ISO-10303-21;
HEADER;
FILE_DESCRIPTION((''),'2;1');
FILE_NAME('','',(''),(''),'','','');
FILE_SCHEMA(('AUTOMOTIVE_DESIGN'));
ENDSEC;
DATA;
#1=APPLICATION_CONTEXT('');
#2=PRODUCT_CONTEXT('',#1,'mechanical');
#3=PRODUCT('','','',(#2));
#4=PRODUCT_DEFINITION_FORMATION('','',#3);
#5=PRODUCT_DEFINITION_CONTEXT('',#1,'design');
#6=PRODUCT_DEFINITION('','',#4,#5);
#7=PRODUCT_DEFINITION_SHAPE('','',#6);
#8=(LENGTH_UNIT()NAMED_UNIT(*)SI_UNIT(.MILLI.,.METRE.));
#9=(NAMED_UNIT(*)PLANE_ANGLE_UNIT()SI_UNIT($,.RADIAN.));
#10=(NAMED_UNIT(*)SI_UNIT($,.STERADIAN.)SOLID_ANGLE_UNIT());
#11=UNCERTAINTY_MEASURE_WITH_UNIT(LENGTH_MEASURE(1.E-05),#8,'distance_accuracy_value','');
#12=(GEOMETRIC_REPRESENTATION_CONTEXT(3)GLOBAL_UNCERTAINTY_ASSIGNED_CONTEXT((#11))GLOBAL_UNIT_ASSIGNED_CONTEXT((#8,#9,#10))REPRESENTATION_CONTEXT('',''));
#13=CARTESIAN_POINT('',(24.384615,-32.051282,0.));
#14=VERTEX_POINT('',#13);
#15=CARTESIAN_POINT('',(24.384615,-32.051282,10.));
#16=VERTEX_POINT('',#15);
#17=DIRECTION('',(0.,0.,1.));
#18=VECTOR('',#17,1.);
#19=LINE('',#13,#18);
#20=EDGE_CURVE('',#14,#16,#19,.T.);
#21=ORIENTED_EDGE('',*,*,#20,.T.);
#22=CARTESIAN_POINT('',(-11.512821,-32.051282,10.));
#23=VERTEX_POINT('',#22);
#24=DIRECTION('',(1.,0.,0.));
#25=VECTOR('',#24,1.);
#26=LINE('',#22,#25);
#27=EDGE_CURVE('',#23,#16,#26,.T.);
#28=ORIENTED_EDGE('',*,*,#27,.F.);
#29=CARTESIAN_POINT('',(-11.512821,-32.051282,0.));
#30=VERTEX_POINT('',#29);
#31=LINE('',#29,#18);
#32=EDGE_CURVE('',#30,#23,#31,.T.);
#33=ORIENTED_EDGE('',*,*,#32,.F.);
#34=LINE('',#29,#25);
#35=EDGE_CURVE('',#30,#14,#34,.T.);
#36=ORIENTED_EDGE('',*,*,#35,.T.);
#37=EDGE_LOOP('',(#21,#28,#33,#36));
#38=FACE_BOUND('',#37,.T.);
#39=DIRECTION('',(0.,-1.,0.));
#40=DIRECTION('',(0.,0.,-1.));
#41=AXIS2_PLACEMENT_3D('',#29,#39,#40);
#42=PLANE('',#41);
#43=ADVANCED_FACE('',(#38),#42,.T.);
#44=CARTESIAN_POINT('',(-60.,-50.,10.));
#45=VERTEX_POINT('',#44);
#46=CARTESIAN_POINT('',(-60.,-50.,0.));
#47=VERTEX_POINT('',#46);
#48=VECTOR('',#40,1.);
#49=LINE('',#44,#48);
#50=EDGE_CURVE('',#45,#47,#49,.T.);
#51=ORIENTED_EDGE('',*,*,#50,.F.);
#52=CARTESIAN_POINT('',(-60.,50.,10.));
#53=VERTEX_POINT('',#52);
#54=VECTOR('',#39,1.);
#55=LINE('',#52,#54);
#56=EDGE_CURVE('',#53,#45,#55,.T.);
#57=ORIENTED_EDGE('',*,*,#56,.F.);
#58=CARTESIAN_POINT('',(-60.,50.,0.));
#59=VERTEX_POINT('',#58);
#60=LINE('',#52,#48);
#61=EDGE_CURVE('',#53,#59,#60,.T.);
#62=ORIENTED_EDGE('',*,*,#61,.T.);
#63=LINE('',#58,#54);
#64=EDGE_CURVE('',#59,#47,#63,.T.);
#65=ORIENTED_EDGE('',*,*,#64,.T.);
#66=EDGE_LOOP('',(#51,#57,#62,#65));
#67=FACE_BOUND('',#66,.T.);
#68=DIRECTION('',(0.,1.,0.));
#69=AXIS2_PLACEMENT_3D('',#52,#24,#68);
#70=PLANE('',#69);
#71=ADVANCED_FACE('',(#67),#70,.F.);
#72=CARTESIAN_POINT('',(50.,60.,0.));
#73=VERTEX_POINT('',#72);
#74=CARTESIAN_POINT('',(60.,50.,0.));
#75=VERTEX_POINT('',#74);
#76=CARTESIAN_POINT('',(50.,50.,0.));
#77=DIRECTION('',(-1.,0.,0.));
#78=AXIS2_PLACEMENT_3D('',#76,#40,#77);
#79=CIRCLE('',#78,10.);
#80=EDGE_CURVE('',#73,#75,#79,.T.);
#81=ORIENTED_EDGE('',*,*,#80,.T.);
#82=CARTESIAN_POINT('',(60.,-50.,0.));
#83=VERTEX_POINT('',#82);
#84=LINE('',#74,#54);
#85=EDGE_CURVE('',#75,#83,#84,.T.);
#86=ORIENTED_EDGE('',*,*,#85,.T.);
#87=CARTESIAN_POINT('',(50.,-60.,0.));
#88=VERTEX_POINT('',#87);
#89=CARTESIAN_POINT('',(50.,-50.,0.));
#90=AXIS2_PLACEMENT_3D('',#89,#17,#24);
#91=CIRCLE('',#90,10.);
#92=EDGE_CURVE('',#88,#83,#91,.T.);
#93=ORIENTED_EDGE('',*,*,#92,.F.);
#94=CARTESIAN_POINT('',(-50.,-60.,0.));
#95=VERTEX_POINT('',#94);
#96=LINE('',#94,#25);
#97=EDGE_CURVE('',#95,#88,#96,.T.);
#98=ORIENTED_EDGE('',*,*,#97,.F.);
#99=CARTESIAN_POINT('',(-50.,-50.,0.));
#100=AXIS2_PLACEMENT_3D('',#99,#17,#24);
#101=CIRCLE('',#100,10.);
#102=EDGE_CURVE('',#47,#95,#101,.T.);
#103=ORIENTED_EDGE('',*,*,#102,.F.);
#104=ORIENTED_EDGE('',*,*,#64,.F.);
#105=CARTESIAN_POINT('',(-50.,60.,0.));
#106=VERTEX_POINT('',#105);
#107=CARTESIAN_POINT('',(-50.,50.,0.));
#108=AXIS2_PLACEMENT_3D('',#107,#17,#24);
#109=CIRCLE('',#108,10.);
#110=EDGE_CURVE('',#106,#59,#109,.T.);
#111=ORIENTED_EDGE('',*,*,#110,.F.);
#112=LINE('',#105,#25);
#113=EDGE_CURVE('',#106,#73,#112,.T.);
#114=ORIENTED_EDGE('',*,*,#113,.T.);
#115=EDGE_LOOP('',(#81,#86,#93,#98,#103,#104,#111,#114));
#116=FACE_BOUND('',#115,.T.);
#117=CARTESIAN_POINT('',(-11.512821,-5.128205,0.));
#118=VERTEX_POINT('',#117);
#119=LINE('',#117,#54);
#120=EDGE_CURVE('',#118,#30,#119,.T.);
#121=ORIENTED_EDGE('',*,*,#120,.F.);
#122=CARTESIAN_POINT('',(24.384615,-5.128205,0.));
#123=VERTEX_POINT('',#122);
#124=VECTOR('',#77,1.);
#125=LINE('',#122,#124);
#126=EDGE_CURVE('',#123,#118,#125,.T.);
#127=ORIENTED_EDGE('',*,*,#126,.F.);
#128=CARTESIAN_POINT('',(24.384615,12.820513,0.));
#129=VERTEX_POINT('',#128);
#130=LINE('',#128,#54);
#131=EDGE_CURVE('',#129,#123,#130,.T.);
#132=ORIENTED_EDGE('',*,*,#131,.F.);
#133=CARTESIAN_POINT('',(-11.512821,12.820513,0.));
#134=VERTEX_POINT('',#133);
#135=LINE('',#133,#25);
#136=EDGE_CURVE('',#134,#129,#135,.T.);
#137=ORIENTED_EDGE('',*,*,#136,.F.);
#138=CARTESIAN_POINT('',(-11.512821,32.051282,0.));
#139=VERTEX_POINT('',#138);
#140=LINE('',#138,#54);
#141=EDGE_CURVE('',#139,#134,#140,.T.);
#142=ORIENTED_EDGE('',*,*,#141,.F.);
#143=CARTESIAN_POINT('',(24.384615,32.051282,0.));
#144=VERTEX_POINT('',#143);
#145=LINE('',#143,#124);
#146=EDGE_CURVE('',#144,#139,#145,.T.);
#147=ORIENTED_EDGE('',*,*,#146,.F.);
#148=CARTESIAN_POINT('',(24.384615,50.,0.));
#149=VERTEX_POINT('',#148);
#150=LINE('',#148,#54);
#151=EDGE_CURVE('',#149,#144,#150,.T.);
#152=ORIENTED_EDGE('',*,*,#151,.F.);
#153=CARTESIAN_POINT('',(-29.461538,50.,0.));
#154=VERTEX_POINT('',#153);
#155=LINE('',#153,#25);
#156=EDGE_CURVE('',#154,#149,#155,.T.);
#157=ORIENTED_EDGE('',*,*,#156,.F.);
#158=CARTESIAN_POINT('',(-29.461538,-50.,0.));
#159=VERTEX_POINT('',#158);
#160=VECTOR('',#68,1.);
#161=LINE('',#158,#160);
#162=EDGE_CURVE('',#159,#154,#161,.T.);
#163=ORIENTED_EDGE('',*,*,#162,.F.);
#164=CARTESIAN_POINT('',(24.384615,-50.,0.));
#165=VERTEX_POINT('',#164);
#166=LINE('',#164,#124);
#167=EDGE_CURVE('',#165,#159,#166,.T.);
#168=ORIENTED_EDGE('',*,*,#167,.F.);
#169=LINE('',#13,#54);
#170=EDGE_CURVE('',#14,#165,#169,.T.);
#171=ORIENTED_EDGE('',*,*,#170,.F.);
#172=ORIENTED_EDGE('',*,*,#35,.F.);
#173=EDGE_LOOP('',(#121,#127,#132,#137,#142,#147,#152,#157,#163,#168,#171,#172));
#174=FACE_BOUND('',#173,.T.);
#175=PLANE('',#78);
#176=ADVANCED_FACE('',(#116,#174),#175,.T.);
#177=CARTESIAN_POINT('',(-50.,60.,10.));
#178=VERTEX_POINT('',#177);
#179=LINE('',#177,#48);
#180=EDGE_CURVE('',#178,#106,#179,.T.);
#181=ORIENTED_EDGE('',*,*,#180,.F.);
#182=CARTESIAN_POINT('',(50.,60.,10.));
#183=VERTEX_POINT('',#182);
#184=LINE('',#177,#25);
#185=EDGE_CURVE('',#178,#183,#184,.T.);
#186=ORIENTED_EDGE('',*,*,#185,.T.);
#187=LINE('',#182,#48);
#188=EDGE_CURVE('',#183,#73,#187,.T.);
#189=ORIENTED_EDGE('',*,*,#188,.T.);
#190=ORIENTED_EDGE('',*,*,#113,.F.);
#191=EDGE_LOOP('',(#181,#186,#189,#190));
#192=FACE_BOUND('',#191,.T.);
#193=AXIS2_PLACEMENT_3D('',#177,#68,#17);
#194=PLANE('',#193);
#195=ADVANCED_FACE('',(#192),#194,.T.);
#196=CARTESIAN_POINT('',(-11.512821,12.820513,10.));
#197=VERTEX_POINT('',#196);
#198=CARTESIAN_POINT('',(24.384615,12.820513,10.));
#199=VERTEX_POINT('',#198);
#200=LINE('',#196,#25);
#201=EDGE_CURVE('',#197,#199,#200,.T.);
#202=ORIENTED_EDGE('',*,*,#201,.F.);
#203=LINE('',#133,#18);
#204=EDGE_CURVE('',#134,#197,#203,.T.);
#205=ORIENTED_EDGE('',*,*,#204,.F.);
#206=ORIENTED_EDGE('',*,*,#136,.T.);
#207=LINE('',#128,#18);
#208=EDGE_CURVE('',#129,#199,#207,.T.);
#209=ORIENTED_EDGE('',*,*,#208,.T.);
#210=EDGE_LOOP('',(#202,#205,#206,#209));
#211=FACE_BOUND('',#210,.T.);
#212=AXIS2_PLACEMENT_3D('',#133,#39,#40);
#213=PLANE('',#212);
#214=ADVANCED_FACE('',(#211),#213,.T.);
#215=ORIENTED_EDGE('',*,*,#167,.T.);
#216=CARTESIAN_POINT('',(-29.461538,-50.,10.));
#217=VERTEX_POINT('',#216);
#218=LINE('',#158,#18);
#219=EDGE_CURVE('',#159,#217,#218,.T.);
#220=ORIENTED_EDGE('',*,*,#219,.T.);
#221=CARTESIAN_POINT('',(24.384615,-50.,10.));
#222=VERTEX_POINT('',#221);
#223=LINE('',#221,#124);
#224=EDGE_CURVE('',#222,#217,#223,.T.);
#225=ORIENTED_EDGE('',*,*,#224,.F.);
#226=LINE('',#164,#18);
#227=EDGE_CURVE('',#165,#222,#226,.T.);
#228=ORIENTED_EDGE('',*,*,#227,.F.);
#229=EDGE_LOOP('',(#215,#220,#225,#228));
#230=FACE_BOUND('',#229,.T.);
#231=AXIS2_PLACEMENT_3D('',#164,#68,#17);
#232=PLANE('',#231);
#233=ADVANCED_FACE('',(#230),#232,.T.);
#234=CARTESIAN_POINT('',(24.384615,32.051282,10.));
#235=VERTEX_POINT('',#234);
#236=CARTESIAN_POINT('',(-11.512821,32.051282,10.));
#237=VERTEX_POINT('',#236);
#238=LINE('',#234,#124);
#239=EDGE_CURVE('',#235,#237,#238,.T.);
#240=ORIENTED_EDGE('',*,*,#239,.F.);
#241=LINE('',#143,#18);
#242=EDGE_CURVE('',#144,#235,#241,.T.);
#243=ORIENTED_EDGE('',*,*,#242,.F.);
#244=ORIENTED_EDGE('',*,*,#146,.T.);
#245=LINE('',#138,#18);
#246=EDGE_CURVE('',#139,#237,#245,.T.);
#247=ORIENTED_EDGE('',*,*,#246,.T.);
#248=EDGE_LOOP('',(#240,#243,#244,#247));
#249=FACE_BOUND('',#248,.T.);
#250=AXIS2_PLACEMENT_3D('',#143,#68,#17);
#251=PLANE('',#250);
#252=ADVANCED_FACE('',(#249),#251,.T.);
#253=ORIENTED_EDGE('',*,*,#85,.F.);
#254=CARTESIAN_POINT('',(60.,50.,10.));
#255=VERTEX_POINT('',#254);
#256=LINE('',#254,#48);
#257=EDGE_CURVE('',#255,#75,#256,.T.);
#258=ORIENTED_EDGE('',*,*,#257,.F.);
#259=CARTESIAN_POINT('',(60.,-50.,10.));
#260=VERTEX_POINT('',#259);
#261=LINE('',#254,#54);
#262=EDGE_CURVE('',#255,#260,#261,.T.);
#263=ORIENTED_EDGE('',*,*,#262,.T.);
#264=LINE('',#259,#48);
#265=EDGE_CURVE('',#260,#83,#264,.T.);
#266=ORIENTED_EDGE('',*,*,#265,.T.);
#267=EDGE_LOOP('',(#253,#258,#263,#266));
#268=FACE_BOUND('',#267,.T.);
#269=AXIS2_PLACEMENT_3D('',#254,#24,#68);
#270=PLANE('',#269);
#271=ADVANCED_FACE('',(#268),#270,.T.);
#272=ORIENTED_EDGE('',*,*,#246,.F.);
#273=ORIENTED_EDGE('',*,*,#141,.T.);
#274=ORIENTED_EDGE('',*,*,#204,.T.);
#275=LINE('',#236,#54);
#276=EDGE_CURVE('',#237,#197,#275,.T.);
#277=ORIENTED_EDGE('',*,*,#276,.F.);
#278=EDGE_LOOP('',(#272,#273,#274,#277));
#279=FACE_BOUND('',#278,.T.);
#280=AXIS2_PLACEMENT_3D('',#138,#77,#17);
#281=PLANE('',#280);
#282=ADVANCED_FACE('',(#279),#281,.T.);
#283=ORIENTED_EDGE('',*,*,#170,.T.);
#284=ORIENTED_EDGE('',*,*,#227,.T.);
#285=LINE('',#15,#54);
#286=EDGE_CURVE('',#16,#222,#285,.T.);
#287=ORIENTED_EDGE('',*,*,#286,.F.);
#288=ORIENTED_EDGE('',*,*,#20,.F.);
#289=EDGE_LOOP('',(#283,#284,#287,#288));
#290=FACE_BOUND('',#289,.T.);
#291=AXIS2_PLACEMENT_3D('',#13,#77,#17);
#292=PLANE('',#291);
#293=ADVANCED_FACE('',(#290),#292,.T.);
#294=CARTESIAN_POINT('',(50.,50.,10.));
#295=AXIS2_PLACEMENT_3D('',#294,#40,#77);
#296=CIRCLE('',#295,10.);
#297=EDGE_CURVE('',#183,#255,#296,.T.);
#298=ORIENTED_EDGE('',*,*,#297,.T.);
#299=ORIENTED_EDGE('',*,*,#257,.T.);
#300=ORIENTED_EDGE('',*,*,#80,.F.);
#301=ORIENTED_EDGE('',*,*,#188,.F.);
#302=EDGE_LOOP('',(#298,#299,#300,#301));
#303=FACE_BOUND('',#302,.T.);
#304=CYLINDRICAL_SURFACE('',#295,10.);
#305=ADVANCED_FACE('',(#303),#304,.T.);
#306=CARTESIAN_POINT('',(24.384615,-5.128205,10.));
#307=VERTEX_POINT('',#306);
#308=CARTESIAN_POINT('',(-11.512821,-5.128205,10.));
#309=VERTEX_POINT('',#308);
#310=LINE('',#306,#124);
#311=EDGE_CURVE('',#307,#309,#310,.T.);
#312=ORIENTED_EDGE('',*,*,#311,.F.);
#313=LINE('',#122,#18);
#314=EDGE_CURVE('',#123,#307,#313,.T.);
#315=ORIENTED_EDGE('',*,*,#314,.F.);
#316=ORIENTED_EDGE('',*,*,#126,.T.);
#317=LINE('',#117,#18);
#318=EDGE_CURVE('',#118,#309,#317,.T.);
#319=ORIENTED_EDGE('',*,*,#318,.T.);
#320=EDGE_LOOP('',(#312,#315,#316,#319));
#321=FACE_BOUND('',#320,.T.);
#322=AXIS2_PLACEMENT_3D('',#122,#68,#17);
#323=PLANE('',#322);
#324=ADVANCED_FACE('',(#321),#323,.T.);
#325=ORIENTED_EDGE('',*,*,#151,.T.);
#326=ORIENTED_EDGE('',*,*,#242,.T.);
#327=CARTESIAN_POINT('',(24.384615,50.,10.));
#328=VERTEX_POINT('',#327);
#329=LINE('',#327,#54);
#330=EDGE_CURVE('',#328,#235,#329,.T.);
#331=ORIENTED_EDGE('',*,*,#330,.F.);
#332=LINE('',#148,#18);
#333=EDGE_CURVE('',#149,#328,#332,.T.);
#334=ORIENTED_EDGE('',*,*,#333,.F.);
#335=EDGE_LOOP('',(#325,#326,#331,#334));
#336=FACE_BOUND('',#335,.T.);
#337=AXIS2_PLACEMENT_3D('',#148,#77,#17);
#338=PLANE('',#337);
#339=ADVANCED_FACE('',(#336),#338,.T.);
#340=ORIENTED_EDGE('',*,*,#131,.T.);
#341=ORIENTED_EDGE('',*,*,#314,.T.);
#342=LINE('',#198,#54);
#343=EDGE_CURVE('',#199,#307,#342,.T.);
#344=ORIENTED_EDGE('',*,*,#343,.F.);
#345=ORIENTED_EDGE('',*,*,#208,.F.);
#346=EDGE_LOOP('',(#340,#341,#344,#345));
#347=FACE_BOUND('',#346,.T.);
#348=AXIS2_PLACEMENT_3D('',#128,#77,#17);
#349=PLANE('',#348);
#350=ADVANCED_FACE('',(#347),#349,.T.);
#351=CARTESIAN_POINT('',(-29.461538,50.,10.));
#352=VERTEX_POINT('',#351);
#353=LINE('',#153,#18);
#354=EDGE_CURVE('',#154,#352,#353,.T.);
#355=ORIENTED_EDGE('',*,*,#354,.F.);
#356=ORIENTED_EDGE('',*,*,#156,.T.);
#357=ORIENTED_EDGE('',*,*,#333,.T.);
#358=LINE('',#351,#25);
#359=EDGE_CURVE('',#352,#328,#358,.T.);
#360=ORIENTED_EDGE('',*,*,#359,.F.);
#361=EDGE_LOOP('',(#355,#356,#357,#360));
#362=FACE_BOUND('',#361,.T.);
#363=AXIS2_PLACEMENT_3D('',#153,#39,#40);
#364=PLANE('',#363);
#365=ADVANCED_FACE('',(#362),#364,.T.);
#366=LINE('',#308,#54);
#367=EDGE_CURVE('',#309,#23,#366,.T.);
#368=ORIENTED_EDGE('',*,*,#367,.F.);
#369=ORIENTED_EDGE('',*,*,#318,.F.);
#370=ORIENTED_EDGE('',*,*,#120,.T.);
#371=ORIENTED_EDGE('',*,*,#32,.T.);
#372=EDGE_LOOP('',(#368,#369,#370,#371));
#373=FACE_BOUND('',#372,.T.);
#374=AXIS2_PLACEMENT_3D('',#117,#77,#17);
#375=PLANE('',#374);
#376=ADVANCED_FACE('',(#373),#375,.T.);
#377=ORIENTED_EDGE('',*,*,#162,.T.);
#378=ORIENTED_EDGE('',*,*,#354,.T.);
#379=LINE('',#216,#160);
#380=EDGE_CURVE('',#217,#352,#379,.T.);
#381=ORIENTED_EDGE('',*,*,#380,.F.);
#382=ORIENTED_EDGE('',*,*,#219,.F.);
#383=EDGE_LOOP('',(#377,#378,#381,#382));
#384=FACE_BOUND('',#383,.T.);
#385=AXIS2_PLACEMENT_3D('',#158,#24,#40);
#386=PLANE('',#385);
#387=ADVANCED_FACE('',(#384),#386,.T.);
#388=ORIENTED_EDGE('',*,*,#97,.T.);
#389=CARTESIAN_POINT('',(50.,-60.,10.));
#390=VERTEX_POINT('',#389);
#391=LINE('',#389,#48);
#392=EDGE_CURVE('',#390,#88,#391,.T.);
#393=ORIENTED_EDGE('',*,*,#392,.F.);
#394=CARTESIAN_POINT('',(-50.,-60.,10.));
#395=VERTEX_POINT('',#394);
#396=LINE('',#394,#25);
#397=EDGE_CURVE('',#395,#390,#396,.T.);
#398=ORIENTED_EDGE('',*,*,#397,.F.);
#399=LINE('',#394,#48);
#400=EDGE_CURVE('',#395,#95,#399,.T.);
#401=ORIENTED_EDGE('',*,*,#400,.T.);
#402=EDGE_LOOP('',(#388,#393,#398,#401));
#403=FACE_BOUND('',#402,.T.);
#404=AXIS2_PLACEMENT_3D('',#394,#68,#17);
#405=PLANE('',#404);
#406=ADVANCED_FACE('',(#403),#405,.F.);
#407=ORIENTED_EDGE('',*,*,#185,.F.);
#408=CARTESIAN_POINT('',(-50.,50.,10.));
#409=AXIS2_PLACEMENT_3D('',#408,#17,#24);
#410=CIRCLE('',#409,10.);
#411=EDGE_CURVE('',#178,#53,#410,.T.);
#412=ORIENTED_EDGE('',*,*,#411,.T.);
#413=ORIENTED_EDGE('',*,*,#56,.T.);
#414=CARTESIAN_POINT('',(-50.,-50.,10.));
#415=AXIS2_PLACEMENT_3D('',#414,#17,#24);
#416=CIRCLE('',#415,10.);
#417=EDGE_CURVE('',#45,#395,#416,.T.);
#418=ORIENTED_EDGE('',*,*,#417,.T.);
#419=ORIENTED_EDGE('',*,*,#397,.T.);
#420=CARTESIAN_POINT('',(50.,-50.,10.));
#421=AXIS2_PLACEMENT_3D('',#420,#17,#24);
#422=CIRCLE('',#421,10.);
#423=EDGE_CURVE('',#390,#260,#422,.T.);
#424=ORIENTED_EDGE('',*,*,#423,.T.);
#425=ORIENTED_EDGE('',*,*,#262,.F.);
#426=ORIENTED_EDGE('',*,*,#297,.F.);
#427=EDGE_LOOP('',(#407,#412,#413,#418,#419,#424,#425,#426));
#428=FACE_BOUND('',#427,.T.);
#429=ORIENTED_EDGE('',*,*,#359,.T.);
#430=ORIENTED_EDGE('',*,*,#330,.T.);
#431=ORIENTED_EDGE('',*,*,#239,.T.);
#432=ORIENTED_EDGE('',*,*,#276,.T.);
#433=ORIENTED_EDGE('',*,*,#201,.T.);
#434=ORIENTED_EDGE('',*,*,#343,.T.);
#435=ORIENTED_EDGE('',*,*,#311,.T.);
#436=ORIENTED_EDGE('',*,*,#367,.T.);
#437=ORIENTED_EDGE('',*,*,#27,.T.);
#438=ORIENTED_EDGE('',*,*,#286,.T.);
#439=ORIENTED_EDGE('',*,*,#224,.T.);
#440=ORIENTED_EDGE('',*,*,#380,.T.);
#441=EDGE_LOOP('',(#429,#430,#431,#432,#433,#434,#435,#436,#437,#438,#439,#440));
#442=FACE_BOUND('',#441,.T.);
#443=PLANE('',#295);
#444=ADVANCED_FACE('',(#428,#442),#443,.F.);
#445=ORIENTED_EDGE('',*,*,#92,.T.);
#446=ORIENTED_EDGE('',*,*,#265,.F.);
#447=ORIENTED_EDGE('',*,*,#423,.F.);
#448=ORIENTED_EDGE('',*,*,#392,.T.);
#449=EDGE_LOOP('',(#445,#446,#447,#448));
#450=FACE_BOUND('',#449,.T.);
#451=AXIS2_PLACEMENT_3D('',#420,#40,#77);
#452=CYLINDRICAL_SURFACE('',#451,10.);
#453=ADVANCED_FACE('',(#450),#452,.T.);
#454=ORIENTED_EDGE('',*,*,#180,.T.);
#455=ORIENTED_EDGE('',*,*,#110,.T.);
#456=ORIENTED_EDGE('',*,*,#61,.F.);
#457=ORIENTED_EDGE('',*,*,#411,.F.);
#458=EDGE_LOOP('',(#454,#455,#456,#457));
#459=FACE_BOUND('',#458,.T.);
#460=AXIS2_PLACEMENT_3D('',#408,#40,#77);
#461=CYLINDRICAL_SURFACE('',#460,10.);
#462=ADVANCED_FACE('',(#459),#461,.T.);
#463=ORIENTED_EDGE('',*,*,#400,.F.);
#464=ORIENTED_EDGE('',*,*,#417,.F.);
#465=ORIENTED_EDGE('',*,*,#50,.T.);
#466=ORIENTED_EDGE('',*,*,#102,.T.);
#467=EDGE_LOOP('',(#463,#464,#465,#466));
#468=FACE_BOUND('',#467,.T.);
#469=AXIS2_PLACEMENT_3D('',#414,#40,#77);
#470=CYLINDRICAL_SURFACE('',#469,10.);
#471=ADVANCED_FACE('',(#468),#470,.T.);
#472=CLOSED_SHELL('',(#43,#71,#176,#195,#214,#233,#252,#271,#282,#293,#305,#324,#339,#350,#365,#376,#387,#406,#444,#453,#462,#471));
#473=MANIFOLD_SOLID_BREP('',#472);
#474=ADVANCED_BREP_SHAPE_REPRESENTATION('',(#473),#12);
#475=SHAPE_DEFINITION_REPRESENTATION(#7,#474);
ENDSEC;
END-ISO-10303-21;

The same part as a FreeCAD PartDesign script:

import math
import FreeCAD as App
import Part
import Sketcher
from FreeCAD import Vector
Q = App.Units.Quantity


def add_polygon(sketch, points):
    """Adds a closed chain of lines whose ends are joined by coincident constraints."""
    first, n = sketch.GeometryCount, len(points)
    for a, b in zip(points, points[1:] + points[:1]):
        sketch.addGeometry(Part.LineSegment(App.Vector(*a, 0), App.Vector(*b, 0)), False)
    for i in range(n):
        sketch.addConstraint(Sketcher.Constraint("Coincident", first + i, 2, first + (i + 1) % n, 1))

doc = App.newDocument("Part")
body = doc.addObject("PartDesign::Body", "Body")

sketch1 = doc.addObject("Sketcher::SketchObject", "Sketch")
body.addObject(sketch1)
sketch1.AttachmentSupport = (doc.XY_Plane, [""])
sketch1.MapMode = "FlatFace"
sketch1.addGeometry(Part.LineSegment(Vector(50, 60, 0), Vector(-50, 60, 0)), False)
sketch1.addGeometry(Part.ArcOfCircle(Part.Circle(Vector(-50, 50, 0), Vector(0, 0, 1), 10), math.radians(90), math.radians(180)), False)
sketch1.addGeometry(Part.LineSegment(Vector(-60, 50, 0), Vector(-60, -50, 0)), False)
sketch1.addGeometry(Part.ArcOfCircle(Part.Circle(Vector(-50, -50, 0), Vector(0, 0, 1), 10), math.radians(180), math.radians(270)), False)
sketch1.addGeometry(Part.LineSegment(Vector(-50, -60, 0), Vector(50, -60, 0)), False)
sketch1.addGeometry(Part.ArcOfCircle(Part.Circle(Vector(50, -50, 0), Vector(0, 0, 1), 10), math.radians(-90), math.radians(0)), False)
sketch1.addGeometry(Part.LineSegment(Vector(60, -50, 0), Vector(60, 50, 0)), False)
sketch1.addGeometry(Part.ArcOfCircle(Part.Circle(Vector(50, 50, 0), Vector(0, 0, 1), 10), math.radians(0), math.radians(90)), False)
sketch1.addConstraint(Sketcher.Constraint("Tangent", 0, 2, 1, 1))
sketch1.addConstraint(Sketcher.Constraint("Tangent", 1, 2, 2, 1))
sketch1.addConstraint(Sketcher.Constraint("Tangent", 2, 2, 3, 1))
sketch1.addConstraint(Sketcher.Constraint("Tangent", 3, 2, 4, 1))
sketch1.addConstraint(Sketcher.Constraint("Tangent", 4, 2, 5, 1))
sketch1.addConstraint(Sketcher.Constraint("Tangent", 5, 2, 6, 1))
sketch1.addConstraint(Sketcher.Constraint("Tangent", 6, 2, 7, 1))
sketch1.addConstraint(Sketcher.Constraint("Tangent", 7, 2, 0, 1))
sketch1.addConstraint(Sketcher.Constraint("Horizontal", 0))
sketch1.addConstraint(Sketcher.Constraint("Vertical", 2))
sketch1.addConstraint(Sketcher.Constraint("Horizontal", 4))
sketch1.addConstraint(Sketcher.Constraint("Vertical", 6))
sketch1.addConstraint(Sketcher.Constraint("Equal", 1, 3))
sketch1.addConstraint(Sketcher.Constraint("Equal", 3, 5))
sketch1.addConstraint(Sketcher.Constraint("Equal", 5, 7))
sketch1.addConstraint(Sketcher.Constraint("Symmetric", 1, 3, 5, 3, -1, 1))
sketch1.addConstraint(Sketcher.Constraint("Equal", 4, 2))
sketch1.addConstraint(Sketcher.Constraint("Radius", 1, Q("10 mm")))
sketch1.addConstraint(Sketcher.Constraint("DistanceX", 0, 2, 0, 1, Q("100 mm")))
pad1 = doc.addObject("PartDesign::Pad", "Pad")
body.addObject(pad1)
pad1.Profile = sketch1
pad1.Length = 10

sketch2 = doc.addObject("Sketcher::SketchObject", "Sketch001")
body.addObject(sketch2)
sketch2.AttachmentSupport = (doc.XY_Plane, [""])
sketch2.MapMode = "FlatFace"
sketch2.AttachmentOffset = App.Placement(Vector(0, 0, 10), App.Rotation())
add_polygon(sketch2, [(24, 50), (-29, 50), (-29, -50), (24, -50), (24, -32), (-12, -32), (-12, -5), (24, -5), (24, 13), (-12, 13), (-12, 32), (24, 32)])
sketch2.addConstraint(Sketcher.Constraint("Horizontal", 0))
sketch2.addConstraint(Sketcher.Constraint("Vertical", 1))
sketch2.addConstraint(Sketcher.Constraint("Horizontal", 2))
sketch2.addConstraint(Sketcher.Constraint("Vertical", 3))
sketch2.addConstraint(Sketcher.Constraint("Horizontal", 4))
sketch2.addConstraint(Sketcher.Constraint("Vertical", 5))
sketch2.addConstraint(Sketcher.Constraint("Horizontal", 6))
sketch2.addConstraint(Sketcher.Constraint("Vertical", 7))
sketch2.addConstraint(Sketcher.Constraint("Horizontal", 8))
sketch2.addConstraint(Sketcher.Constraint("Vertical", 9))
sketch2.addConstraint(Sketcher.Constraint("Horizontal", 10))
sketch2.addConstraint(Sketcher.Constraint("Vertical", 11))
sketch2.addConstraint(Sketcher.Constraint("Symmetric", 4, 2, 9, 2, -1))
sketch2.addConstraint(Sketcher.Constraint("Symmetric", 2, 2, 11, 2, -1))
sketch2.addConstraint(Sketcher.Constraint("Vertical", 3, 2, 6, 2))
sketch2.addConstraint(Sketcher.Constraint("Equal", 3, 7))
sketch2.addConstraint(Sketcher.Constraint("DistanceY", 1, 2, 1, 1, Q("100 mm")))
sketch2.addConstraint(Sketcher.Constraint("DistanceY", 9, 1, 9, 2, Q("19.230769 mm")))
sketch2.addConstraint(Sketcher.Constraint("DistanceX", 0, 2, 0, 1, Q("53.846154 mm")))
sketch2.addConstraint(Sketcher.Constraint("DistanceX", 4, 2, 4, 1, Q("35.897436 mm")))
sketch2.addConstraint(Sketcher.Constraint("DistanceY", 3, 1, 3, 2, Q("17.948718 mm")))
sketch2.addConstraint(Sketcher.Constraint("DistanceX", 0, 2, -1, 1, Q("29.461538 mm")))
pocket1 = doc.addObject("PartDesign::Pocket", "Pocket")
body.addObject(pocket1)
pocket1.Profile = sketch2
pocket1.Length = 10

doc.recompute()
